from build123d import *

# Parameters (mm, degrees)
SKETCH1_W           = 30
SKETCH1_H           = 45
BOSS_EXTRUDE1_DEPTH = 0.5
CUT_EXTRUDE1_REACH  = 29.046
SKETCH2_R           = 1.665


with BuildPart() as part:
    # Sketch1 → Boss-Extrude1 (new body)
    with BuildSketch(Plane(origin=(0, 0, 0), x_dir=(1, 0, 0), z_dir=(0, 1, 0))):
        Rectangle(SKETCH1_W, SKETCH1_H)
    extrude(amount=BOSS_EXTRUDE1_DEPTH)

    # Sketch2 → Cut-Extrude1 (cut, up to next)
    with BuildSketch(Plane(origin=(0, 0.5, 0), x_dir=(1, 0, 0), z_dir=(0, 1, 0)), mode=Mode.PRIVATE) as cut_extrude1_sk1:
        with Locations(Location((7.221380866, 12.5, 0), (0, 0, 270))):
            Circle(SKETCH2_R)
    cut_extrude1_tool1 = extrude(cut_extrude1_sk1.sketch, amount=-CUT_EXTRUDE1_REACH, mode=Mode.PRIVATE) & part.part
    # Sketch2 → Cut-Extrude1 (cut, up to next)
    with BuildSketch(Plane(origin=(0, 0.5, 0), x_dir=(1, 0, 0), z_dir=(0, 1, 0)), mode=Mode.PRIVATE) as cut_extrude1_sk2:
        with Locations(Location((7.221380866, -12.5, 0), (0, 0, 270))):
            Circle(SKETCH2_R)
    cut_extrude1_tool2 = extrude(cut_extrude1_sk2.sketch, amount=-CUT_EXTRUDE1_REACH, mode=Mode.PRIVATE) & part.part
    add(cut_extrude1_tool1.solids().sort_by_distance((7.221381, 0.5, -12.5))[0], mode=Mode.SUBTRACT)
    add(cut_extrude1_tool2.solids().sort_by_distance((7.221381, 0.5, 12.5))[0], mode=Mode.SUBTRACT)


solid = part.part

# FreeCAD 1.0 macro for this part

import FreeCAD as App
import Part
import Sketcher

doc = App.newDocument("Part")
body = doc.addObject("PartDesign::Body", "Body")

sketch1 = doc.addObject("Sketcher::SketchObject", "Sketch")
body.addObject(sketch1)
sketch1.AttachmentSupport = (doc.XZ_Plane, [""])
sketch1.MapMode = "FlatFace"
sketch1.addGeometry([
    Part.LineSegment(App.Vector(-15, -22.5, 0), App.Vector(-15, 22.5, 0)),
    Part.LineSegment(App.Vector(-15, 22.5, 0), App.Vector(15, 22.5, 0)),
    Part.LineSegment(App.Vector(15, 22.5, 0), App.Vector(15, -22.5, 0)),
    Part.LineSegment(App.Vector(15, -22.5, 0), App.Vector(-15, -22.5, 0)),
], False)
sketch1.addConstraint([
    Sketcher.Constraint("Coincident", 0, 2, 1, 1),
    Sketcher.Constraint("Coincident", 1, 2, 2, 1),
    Sketcher.Constraint("Coincident", 2, 2, 3, 1),
    Sketcher.Constraint("Coincident", 3, 2, 0, 1),
    Sketcher.Constraint("Vertical", 0),
    Sketcher.Constraint("Horizontal", 1),
    Sketcher.Constraint("Vertical", 2),
    Sketcher.Constraint("Horizontal", 3),
    Sketcher.Constraint("Symmetric", 0, 2, 2, 2, -1, 1),
    Sketcher.Constraint("DistanceX", 1, 1, 1, 2, 30.0),
    Sketcher.Constraint("DistanceY", 0, 1, 0, 2, 45.0),
])
pad1 = doc.addObject("PartDesign::Pad", "Pad")
body.addObject(pad1)
pad1.Profile = sketch1
pad1.Length = 0.5
pad1.Reversed = True

sketch2 = doc.addObject("Sketcher::SketchObject", "Sketch001")
body.addObject(sketch2)
sketch2.AttachmentSupport = (doc.XZ_Plane, [""])
sketch2.MapMode = "FlatFace"
sketch2.AttachmentOffset = App.Placement(App.Vector(0, 0, -0.5), App.Rotation())
sketch2.addGeometry(Part.Circle(App.Vector(7.221381, -12.5, 0), App.Vector(0, 0, 1), 1.665), False)
sketch2.addConstraint([
    Sketcher.Constraint("Diameter", 0, 3.33),
    Sketcher.Constraint("DistanceY", 0, 3, -1, 1, 12.5),
    Sketcher.Constraint("DistanceX", -1, 1, 0, 3, 7.221381),
])
pocket1 = doc.addObject("PartDesign::Pocket", "Pocket")
body.addObject(pocket1)
pocket1.Profile = sketch2
pocket1.Type = "UpToFirst"
pocket1.Reversed = True

sketch3 = doc.addObject("Sketcher::SketchObject", "Sketch002")
body.addObject(sketch3)
sketch3.AttachmentSupport = (doc.XZ_Plane, [""])
sketch3.MapMode = "FlatFace"
sketch3.AttachmentOffset = App.Placement(App.Vector(0, 0, -0.5), App.Rotation())
sketch3.addGeometry(Part.Circle(App.Vector(7.221381, 12.5, 0), App.Vector(0, 0, 1), 1.665), False)
sketch3.addConstraint([
    Sketcher.Constraint("Diameter", 0, 3.33),
    Sketcher.Constraint("DistanceY", -1, 1, 0, 3, 12.5),
    Sketcher.Constraint("DistanceX", -1, 1, 0, 3, 7.221381),
])
pocket2 = doc.addObject("PartDesign::Pocket", "Pocket001")
body.addObject(pocket2)
pocket2.Profile = sketch3
pocket2.Type = "UpToFirst"
pocket2.Reversed = True

doc.recompute()
